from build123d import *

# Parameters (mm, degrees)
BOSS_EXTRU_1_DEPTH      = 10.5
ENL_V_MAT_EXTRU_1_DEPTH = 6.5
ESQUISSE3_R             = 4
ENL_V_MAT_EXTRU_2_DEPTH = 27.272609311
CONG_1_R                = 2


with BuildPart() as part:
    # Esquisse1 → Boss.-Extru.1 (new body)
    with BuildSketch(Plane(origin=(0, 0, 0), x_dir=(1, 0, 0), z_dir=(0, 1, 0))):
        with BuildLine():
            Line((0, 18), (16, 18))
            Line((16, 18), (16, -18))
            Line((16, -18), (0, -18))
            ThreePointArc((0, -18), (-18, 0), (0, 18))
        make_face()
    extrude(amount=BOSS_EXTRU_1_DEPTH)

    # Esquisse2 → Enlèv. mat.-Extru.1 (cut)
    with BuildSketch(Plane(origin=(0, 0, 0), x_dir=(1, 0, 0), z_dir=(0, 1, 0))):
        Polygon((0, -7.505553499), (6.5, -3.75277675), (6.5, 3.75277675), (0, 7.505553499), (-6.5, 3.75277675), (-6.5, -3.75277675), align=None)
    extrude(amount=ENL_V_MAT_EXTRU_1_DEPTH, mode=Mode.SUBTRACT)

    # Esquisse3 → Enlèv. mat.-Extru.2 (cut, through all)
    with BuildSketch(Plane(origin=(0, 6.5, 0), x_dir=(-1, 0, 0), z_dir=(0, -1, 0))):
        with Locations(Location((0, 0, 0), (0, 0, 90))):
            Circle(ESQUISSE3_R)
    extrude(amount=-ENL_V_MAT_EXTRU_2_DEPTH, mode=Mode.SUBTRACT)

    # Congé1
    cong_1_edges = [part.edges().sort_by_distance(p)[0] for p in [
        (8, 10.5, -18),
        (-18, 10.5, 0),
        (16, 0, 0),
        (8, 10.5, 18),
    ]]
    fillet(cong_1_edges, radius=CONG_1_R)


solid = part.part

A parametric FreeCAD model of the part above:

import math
import FreeCAD as App
import Part
import Sketcher
Q = App.Units.Quantity


def edges_at(feature, points):
    """Names of the edges that pass closest to the given points."""
    edges = feature.Shape.Edges
    near = lambda p: min(range(len(edges)), key=lambda i: edges[i].distToShape(Part.Vertex(*p))[0])
    return sorted({f"Edge{near(p) + 1}" for p in points})

doc = App.newDocument("Part")
body = doc.addObject("PartDesign::Body", "Body")

# Sketch on XZ plane
sketch1 = doc.addObject("Sketcher::SketchObject", "Sketch")
body.addObject(sketch1)
sketch1.AttachmentSupport = (doc.XZ_Plane, [""])
sketch1.MapMode = "FlatFace"
sketch1.addGeometry([
    Part.LineSegment(App.Vector(16, -18, 0), App.Vector(0, -18, 0)),
    Part.ArcOfCircle(Part.Circle(App.Vector(0, 0, 0), App.Vector(0, 0, 1), 18), math.radians(90), math.radians(270)),
    Part.LineSegment(App.Vector(0, 18, 0), App.Vector(16, 18, 0)),
    Part.LineSegment(App.Vector(16, 18, 0), App.Vector(16, -18, 0)),
], False)
sketch1.addConstraint([
    Sketcher.Constraint("Tangent", 0, 2, 1, 2),
    Sketcher.Constraint("Tangent", 1, 1, 2, 1),
    Sketcher.Constraint("Coincident", 2, 2, 3, 1),
    Sketcher.Constraint("Coincident", 3, 2, 0, 1),
    Sketcher.Constraint("Horizontal", 0),
    Sketcher.Constraint("Horizontal", 2),
    Sketcher.Constraint("Vertical", 3),
    Sketcher.Constraint("Coincident", 1, 3, -1, 1),
    Sketcher.Constraint("Radius", 1, Q("18 mm")),
    Sketcher.Constraint("DistanceX", 0, 2, 0, 1, Q("16 mm")),
])
pad1 = doc.addObject("PartDesign::Pad", "Pad")
body.addObject(pad1)
pad1.Profile = sketch1
pad1.Length = 10.5
pad1.Reversed = True

# Sketch on XZ plane
sketch2 = doc.addObject("Sketcher::SketchObject", "Sketch001")
body.addObject(sketch2)
sketch2.AttachmentSupport = (doc.XZ_Plane, [""])
sketch2.MapMode = "FlatFace"
sketch2.addGeometry([
    Part.LineSegment(App.Vector(0, 7.505553, 0), App.Vector(6.5, 3.752777, 0)),  # 0
    Part.LineSegment(App.Vector(6.5, 3.752777, 0), App.Vector(6.5, -3.752777, 0)),  # 1
    Part.LineSegment(App.Vector(6.5, -3.752777, 0), App.Vector(0, -7.505553, 0)),  # 2
    Part.LineSegment(App.Vector(0, -7.505553, 0), App.Vector(-6.5, -3.752777, 0)),  # 3
    Part.LineSegment(App.Vector(-6.5, -3.752777, 0), App.Vector(-6.5, 3.752777, 0)),  # 4
    Part.LineSegment(App.Vector(-6.5, 3.752777, 0), App.Vector(0, 7.505553, 0)),  # 5
], False)
sketch2.addConstraint([
    Sketcher.Constraint("Coincident", 0, 2, 1, 1),
    Sketcher.Constraint("Coincident", 1, 2, 2, 1),
    Sketcher.Constraint("Coincident", 2, 2, 3, 1),
    Sketcher.Constraint("Coincident", 3, 2, 4, 1),
    Sketcher.Constraint("Coincident", 4, 2, 5, 1),
    Sketcher.Constraint("Coincident", 5, 2, 0, 1),
    Sketcher.Constraint("Vertical", 1),
    Sketcher.Constraint("Vertical", 4),
    Sketcher.Constraint("Symmetric", 0, 2, 3, 2, -1, 1),
    Sketcher.Constraint("Symmetric", 2, 2, 5, 2, -1, 1),
    Sketcher.Constraint("PointOnObject", 2, 2, -2),
    Sketcher.Constraint("Parallel", 2, 5),
    Sketcher.Constraint("Horizontal", 1, 2, 3, 2),
    Sketcher.Constraint("Angle", 0, Q("-30 deg")),
    Sketcher.Constraint("DistanceX", 3, 2, 1, 2, Q("13 mm")),
    Sketcher.Constraint("DistanceY", 1, 2, 1, 1, Q("7.505554 mm")),
])
pocket1 = doc.addObject("PartDesign::Pocket", "Pocket")
body.addObject(pocket1)
pocket1.Profile = sketch2
pocket1.Length = 6.5

# Sketch on XZ plane
sketch3 = doc.addObject("Sketcher::SketchObject", "Sketch002")
body.addObject(sketch3)
sketch3.AttachmentSupport = (doc.XZ_Plane, [""])
sketch3.MapMode = "FlatFace"
sketch3.AttachmentOffset = App.Placement(App.Vector(0, 0, -6.5), App.Rotation())
sketch3.addGeometry(Part.Circle(App.Vector(0, 0, 0), App.Vector(0, 0, 1), 4), False)
sketch3.addConstraint([
    Sketcher.Constraint("Coincident", 0, 3, -1, 1),
    Sketcher.Constraint("Diameter", 0, Q("8 mm")),
])
pocket2 = doc.addObject("PartDesign::Pocket", "Pocket001")
body.addObject(pocket2)
pocket2.Profile = sketch3
pocket2.Type = "ThroughAll"
doc.recompute()

fillet = doc.addObject("PartDesign::Fillet", "Fillet")
body.addObject(fillet)
fillet.Base = (pocket2, edges_at(pocket2, [
    (8, 10.5, -18),
    (-18, 10.5, 0),
    (16, 0, 0),
    (8, 10.5, 18),
]))
fillet.Radius = 2

doc.recompute()
